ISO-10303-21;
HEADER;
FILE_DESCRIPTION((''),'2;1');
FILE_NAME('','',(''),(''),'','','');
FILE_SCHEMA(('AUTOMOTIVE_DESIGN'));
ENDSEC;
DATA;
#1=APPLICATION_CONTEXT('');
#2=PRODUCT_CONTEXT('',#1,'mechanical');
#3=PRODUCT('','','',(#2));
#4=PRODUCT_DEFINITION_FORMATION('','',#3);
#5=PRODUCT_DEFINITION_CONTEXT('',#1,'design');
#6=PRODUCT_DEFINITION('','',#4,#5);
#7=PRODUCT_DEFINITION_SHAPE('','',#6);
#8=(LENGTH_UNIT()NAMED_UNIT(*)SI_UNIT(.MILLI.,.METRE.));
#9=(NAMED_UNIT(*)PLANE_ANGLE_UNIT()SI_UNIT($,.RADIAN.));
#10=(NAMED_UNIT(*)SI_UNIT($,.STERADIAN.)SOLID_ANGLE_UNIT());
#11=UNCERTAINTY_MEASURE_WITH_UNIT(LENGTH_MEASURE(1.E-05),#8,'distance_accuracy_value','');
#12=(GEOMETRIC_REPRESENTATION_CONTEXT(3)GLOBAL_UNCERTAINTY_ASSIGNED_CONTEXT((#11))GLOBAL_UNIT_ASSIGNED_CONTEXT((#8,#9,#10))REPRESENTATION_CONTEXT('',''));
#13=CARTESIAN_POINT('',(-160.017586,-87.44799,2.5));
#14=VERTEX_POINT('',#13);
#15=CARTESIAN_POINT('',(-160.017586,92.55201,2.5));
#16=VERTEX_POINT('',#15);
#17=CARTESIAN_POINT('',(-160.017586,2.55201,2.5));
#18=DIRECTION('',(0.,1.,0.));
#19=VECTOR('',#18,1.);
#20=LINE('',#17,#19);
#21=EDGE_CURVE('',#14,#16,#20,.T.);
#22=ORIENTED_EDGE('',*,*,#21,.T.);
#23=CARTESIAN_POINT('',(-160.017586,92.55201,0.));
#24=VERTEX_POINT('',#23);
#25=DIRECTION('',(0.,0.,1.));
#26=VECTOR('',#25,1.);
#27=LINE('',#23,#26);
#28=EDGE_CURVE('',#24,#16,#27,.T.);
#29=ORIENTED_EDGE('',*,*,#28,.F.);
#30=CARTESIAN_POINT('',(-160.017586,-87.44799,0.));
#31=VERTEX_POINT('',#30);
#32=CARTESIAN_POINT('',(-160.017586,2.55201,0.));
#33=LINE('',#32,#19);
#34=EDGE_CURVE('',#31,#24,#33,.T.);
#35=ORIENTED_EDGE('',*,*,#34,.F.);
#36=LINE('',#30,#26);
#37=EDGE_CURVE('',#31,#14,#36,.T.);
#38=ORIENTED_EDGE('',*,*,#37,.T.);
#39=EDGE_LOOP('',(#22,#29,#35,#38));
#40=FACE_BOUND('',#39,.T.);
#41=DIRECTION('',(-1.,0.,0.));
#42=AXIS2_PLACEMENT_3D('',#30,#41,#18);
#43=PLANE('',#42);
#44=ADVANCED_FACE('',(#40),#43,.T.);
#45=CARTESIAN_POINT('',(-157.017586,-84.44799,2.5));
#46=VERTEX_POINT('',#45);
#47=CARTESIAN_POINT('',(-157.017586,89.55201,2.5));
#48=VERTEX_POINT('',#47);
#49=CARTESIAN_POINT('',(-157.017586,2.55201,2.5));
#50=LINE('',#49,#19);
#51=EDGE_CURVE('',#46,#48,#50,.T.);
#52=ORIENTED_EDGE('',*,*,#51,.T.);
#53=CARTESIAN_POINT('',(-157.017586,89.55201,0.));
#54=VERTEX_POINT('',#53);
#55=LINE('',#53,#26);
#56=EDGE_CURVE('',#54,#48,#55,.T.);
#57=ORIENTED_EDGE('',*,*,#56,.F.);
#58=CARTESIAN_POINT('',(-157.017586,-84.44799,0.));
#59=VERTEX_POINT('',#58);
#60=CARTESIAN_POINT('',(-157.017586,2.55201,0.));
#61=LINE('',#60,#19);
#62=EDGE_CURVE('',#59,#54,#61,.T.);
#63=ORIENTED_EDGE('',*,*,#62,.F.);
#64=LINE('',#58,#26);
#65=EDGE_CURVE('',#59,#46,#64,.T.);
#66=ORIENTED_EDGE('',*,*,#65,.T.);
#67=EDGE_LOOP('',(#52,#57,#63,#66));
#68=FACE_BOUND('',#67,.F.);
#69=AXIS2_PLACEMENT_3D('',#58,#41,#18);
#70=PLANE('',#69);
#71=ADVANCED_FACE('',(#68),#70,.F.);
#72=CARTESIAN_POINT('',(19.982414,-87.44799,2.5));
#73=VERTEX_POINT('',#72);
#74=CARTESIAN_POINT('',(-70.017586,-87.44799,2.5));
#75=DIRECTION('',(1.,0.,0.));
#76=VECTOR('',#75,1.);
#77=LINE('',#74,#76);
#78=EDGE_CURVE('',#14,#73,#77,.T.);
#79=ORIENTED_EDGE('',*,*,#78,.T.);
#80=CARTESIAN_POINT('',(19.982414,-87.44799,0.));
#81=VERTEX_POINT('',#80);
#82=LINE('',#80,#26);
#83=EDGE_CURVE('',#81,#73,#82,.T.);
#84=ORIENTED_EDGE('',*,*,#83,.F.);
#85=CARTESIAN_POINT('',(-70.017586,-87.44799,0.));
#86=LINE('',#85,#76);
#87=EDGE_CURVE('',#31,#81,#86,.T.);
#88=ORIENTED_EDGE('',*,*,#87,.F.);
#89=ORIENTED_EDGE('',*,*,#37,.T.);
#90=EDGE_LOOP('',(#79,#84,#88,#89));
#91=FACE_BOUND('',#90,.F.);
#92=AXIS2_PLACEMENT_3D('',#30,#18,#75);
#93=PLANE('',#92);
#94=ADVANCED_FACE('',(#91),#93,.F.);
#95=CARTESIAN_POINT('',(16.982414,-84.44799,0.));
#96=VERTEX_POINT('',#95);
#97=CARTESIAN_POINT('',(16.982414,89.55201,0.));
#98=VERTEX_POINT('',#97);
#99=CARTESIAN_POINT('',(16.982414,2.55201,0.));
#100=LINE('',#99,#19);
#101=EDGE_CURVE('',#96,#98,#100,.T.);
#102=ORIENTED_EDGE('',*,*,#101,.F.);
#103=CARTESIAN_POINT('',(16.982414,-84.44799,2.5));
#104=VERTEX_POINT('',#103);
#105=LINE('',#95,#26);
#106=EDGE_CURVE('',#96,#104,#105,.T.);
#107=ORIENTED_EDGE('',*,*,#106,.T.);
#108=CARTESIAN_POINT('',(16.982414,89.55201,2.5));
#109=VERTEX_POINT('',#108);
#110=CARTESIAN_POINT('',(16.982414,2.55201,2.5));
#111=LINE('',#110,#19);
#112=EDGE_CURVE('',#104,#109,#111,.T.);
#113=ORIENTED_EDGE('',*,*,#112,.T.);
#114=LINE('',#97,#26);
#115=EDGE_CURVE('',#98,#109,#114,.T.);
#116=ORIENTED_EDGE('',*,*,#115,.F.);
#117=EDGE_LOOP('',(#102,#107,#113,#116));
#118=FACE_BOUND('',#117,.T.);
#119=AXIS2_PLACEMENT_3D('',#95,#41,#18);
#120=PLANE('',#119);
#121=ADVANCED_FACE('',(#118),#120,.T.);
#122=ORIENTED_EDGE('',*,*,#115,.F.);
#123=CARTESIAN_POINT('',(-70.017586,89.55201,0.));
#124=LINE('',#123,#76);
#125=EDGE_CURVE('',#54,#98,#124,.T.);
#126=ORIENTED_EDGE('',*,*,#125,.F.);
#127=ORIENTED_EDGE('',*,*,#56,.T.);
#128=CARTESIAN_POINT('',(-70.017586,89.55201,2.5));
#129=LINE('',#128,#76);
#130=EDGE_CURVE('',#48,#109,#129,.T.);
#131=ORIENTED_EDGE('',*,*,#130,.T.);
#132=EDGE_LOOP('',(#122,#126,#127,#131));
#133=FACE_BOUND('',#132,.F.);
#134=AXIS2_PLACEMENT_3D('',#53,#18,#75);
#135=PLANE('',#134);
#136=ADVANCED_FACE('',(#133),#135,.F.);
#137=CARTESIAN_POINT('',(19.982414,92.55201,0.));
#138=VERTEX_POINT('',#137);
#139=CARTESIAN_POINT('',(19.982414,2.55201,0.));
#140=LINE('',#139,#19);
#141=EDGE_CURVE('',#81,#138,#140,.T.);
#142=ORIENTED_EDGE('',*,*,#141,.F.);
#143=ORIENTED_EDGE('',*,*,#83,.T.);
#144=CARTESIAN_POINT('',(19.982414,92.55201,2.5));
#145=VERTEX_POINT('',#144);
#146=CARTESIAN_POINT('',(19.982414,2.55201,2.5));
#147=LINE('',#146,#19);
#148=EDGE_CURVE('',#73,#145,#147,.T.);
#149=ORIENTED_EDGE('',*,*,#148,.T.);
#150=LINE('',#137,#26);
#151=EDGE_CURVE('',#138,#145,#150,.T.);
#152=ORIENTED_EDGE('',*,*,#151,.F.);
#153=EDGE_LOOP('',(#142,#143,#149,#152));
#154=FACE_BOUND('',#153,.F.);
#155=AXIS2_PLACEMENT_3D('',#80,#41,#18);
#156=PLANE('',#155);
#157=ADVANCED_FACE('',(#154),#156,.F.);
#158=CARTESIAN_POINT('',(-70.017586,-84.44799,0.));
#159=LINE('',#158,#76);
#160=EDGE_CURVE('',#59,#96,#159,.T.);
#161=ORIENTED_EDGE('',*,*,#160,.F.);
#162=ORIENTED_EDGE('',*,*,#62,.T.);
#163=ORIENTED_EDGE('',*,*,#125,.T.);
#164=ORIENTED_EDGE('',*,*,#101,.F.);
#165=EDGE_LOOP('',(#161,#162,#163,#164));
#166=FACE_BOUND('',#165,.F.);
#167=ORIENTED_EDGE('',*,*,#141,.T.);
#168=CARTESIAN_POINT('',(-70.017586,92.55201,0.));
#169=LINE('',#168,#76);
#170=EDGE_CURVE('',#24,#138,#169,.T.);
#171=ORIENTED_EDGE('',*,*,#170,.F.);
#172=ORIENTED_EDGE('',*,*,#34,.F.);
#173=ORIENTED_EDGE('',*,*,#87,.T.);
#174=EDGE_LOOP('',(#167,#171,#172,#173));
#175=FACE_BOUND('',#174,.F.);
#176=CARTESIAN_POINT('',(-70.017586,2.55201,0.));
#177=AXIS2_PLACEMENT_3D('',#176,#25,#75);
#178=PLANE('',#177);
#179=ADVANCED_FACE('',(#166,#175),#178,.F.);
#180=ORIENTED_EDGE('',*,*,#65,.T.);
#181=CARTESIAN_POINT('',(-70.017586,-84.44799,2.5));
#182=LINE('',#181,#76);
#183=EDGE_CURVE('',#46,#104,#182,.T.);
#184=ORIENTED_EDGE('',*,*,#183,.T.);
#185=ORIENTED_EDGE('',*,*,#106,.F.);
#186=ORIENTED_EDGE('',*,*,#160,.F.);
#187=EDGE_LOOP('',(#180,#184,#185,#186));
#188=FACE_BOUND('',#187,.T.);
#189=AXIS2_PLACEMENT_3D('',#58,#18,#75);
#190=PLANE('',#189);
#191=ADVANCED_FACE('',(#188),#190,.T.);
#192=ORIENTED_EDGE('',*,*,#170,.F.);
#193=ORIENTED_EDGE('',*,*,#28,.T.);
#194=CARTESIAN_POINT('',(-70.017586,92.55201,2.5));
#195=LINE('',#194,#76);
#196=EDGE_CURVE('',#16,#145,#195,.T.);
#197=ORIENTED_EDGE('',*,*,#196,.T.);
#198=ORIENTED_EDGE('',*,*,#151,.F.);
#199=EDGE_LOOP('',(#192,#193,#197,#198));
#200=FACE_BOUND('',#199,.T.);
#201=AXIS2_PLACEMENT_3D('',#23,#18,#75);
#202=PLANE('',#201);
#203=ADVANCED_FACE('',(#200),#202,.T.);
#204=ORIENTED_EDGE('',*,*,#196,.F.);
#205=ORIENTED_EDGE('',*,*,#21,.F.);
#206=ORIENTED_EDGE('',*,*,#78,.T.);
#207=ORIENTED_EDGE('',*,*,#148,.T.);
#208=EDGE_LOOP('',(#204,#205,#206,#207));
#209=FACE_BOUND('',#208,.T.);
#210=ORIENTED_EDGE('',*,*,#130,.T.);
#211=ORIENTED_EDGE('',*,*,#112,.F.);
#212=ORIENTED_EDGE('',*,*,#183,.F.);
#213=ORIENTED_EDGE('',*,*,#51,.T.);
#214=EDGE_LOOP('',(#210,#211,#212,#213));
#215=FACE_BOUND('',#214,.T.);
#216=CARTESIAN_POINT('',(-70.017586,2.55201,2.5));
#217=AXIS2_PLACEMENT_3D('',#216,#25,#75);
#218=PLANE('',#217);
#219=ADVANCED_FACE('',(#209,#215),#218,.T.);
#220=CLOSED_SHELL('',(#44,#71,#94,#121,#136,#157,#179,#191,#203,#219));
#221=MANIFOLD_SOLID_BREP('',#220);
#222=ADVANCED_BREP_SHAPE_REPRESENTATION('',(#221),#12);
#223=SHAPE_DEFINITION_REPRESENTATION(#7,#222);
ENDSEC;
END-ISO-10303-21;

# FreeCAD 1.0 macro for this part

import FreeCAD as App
import Part
import Sketcher
from FreeCAD import Vector

doc = App.newDocument("Part")
params = doc.addObject("Spreadsheet::Sheet", "Params")
for row, (alias, value) in enumerate([
    ("sketch1_width", "180 mm"),
    ("sketch1_width2", "174 mm"),
    ("pad1_length", "2.5 mm"),
    ("sketch2_width", "174 mm"),
    ("pocket1_length", "25 mm"),
], start=1):
    params.set(f"A{row}", alias)
    params.set(f"B{row}", "=" + value)
    params.setAlias(f"B{row}", alias)

body = doc.addObject("PartDesign::Body", "Body")

# Sketch on XY plane
sketch1 = body.newObject("Sketcher::SketchObject", "Sketch")
sketch1.AttachmentSupport = (doc.getObject("XY_Plane"), [""])
sketch1.MapMode = "FlatFace"
sketch1.addGeometry(Part.LineSegment(Vector(-160.017586, 92.55201, 0), Vector(-160.017586, -87.44799, 0)), False)
sketch1.addGeometry(Part.LineSegment(Vector(-160.017586, -87.44799, 0), Vector(19.982414, -87.44799, 0)), False)
sketch1.addGeometry(Part.LineSegment(Vector(19.982414, -87.44799, 0), Vector(19.982414, 92.55201, 0)), False)
sketch1.addGeometry(Part.LineSegment(Vector(19.982414, 92.55201, 0), Vector(-160.017586, 92.55201, 0)), False)
sketch1.addGeometry(Part.LineSegment(Vector(16.982414, -84.44799, 0), Vector(-157.017586, -84.44799, 0)), False)
sketch1.addGeometry(Part.LineSegment(Vector(-157.017586, -84.44799, 0), Vector(-157.017586, 89.55201, 0)), False)
sketch1.addGeometry(Part.LineSegment(Vector(-157.017586, 89.55201, 0), Vector(16.982414, 89.55201, 0)), False)
sketch1.addGeometry(Part.LineSegment(Vector(16.982414, 89.55201, 0), Vector(16.982414, -84.44799, 0)), False)
sketch1.addConstraint(Sketcher.Constraint("Coincident", 0, 2, 1, 1))
sketch1.addConstraint(Sketcher.Constraint("Coincident", 1, 2, 2, 1))
sketch1.addConstraint(Sketcher.Constraint("Coincident", 2, 2, 3, 1))
sketch1.addConstraint(Sketcher.Constraint("Coincident", 3, 2, 0, 1))
sketch1.addConstraint(Sketcher.Constraint("Coincident", 4, 2, 5, 1))
sketch1.addConstraint(Sketcher.Constraint("Coincident", 5, 2, 6, 1))
sketch1.addConstraint(Sketcher.Constraint("Coincident", 6, 2, 7, 1))
sketch1.addConstraint(Sketcher.Constraint("Coincident", 7, 2, 4, 1))
sketch1.addConstraint(Sketcher.Constraint("Vertical", 0))
sketch1.addConstraint(Sketcher.Constraint("Horizontal", 1))
sketch1.addConstraint(Sketcher.Constraint("Vertical", 2))
sketch1.addConstraint(Sketcher.Constraint("Horizontal", 3))
sketch1.addConstraint(Sketcher.Constraint("Horizontal", 4))
sketch1.addConstraint(Sketcher.Constraint("Vertical", 5))
sketch1.addConstraint(Sketcher.Constraint("Horizontal", 6))
sketch1.addConstraint(Sketcher.Constraint("Vertical", 7))
sketch1.addConstraint(Sketcher.Constraint("Equal", 3, 0))
sketch1.addConstraint(Sketcher.Constraint("Equal", 6, 5))
sketch1.addConstraint(Sketcher.Constraint("DistanceX", 1, 1, 1, 2, 180.0))
sketch1.addConstraint(Sketcher.Constraint("DistanceX", 4, 2, 4, 1, 174.0))
sketch1.addConstraint(Sketcher.Constraint("DistanceX", 0, 2, 4, 2, 3.0))
sketch1.addConstraint(Sketcher.Constraint("DistanceY", 0, 2, 4, 2, 3.0))
sketch1.addConstraint(Sketcher.Constraint("DistanceY", 0, 2, -1, 1, 87.44799))
sketch1.addConstraint(Sketcher.Constraint("DistanceX", 0, 2, -1, 1, 160.017586))
sketch1.setExpression("Constraints[18]", "Params.sketch1_width")
sketch1.setExpression("Constraints[19]", "Params.sketch1_width2")
pad1 = body.newObject("PartDesign::Pad", "Pad")
pad1.Profile = sketch1
pad1.setExpression("Length", "Params.pad1_length")

# Sketch on XY plane
sketch2 = body.newObject("Sketcher::SketchObject", "Sketch001")
sketch2.AttachmentSupport = (doc.getObject("XY_Plane"), [""])
sketch2.MapMode = "FlatFace"
sketch2.addGeometry(Part.LineSegment(Vector(-157.017586, 89.55201, 0), Vector(-157.017586, -84.44799, 0)), False)
sketch2.addGeometry(Part.LineSegment(Vector(-157.017586, -84.44799, 0), Vector(16.982414, -84.44799, 0)), False)
sketch2.addGeometry(Part.LineSegment(Vector(16.982414, -84.44799, 0), Vector(16.982414, 89.55201, 0)), False)
sketch2.addGeometry(Part.LineSegment(Vector(16.982414, 89.55201, 0), Vector(-157.017586, 89.55201, 0)), False)
sketch2.addConstraint(Sketcher.Constraint("Coincident", 0, 2, 1, 1))
sketch2.addConstraint(Sketcher.Constraint("Coincident", 1, 2, 2, 1))
sketch2.addConstraint(Sketcher.Constraint("Coincident", 2, 2, 3, 1))
sketch2.addConstraint(Sketcher.Constraint("Coincident", 3, 2, 0, 1))
sketch2.addConstraint(Sketcher.Constraint("Vertical", 0))
sketch2.addConstraint(Sketcher.Constraint("Horizontal", 1))
sketch2.addConstraint(Sketcher.Constraint("Vertical", 2))
sketch2.addConstraint(Sketcher.Constraint("Horizontal", 3))
sketch2.addConstraint(Sketcher.Constraint("Equal", 3, 0))
sketch2.addConstraint(Sketcher.Constraint("DistanceX", 1, 1, 1, 2, 174.0))
sketch2.addConstraint(Sketcher.Constraint("DistanceY", 0, 2, -1, 1, 84.44799))
sketch2.addConstraint(Sketcher.Constraint("DistanceX", 0, 2, -1, 1, 157.017586))
sketch2.setExpression("Constraints[9]", "Params.sketch2_width")
pocket1 = body.newObject("PartDesign::Pocket", "Pocket")
pocket1.Profile = sketch2
pocket1.setExpression("Length", "Params.pocket1_length")

doc.recompute()
